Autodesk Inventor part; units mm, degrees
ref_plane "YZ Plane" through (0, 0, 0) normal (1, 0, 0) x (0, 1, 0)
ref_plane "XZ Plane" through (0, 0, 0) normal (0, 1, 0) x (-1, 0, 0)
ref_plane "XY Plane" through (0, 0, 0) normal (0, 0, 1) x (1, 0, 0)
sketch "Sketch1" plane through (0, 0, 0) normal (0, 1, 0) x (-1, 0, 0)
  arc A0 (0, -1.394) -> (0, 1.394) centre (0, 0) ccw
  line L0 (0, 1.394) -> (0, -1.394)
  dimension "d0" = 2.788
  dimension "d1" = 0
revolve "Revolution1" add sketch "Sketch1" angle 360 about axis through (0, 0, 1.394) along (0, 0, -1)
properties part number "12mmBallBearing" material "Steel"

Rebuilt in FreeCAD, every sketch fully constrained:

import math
import FreeCAD as App
import Part
import Sketcher

V = App.Vector
Q = App.Units.Quantity

doc = App.newDocument("Part")
body = doc.addObject("PartDesign::Body", "Body")

sketch1 = doc.addObject("Sketcher::SketchObject", "Sketch")
body.addObject(sketch1)
sketch1.AttachmentSupport = (doc.XZ_Plane, [""])
sketch1.MapMode = "FlatFace"
sketch1.addGeometry([
    Part.LineSegment(V(0, 1.394, 0), V(0, -1.394, 0)),
    Part.ArcOfCircle(Part.Circle(V(0, 0, 0), V(0, 0, 1), 1.394), math.radians(90), math.radians(270)),
], False)
sketch1.addConstraint([
    Sketcher.Constraint("Coincident", 0, 1, 1, 1),
    Sketcher.Constraint("Coincident", 1, 2, 0, 2),
    Sketcher.Constraint("Vertical", 0),
    Sketcher.Constraint("Coincident", 1, 3, -1, 1),
    Sketcher.Constraint("PointOnObject", 0, 1, -2),
    Sketcher.Constraint("Radius", 1, Q("1.394 mm")),
])
revolution = doc.addObject("PartDesign::Revolution", "Revolution")
body.addObject(revolution)
revolution.Profile = sketch1
revolution.ReferenceAxis = (sketch1, ["V_Axis"])
revolution.Angle = 360

doc.recompute()
